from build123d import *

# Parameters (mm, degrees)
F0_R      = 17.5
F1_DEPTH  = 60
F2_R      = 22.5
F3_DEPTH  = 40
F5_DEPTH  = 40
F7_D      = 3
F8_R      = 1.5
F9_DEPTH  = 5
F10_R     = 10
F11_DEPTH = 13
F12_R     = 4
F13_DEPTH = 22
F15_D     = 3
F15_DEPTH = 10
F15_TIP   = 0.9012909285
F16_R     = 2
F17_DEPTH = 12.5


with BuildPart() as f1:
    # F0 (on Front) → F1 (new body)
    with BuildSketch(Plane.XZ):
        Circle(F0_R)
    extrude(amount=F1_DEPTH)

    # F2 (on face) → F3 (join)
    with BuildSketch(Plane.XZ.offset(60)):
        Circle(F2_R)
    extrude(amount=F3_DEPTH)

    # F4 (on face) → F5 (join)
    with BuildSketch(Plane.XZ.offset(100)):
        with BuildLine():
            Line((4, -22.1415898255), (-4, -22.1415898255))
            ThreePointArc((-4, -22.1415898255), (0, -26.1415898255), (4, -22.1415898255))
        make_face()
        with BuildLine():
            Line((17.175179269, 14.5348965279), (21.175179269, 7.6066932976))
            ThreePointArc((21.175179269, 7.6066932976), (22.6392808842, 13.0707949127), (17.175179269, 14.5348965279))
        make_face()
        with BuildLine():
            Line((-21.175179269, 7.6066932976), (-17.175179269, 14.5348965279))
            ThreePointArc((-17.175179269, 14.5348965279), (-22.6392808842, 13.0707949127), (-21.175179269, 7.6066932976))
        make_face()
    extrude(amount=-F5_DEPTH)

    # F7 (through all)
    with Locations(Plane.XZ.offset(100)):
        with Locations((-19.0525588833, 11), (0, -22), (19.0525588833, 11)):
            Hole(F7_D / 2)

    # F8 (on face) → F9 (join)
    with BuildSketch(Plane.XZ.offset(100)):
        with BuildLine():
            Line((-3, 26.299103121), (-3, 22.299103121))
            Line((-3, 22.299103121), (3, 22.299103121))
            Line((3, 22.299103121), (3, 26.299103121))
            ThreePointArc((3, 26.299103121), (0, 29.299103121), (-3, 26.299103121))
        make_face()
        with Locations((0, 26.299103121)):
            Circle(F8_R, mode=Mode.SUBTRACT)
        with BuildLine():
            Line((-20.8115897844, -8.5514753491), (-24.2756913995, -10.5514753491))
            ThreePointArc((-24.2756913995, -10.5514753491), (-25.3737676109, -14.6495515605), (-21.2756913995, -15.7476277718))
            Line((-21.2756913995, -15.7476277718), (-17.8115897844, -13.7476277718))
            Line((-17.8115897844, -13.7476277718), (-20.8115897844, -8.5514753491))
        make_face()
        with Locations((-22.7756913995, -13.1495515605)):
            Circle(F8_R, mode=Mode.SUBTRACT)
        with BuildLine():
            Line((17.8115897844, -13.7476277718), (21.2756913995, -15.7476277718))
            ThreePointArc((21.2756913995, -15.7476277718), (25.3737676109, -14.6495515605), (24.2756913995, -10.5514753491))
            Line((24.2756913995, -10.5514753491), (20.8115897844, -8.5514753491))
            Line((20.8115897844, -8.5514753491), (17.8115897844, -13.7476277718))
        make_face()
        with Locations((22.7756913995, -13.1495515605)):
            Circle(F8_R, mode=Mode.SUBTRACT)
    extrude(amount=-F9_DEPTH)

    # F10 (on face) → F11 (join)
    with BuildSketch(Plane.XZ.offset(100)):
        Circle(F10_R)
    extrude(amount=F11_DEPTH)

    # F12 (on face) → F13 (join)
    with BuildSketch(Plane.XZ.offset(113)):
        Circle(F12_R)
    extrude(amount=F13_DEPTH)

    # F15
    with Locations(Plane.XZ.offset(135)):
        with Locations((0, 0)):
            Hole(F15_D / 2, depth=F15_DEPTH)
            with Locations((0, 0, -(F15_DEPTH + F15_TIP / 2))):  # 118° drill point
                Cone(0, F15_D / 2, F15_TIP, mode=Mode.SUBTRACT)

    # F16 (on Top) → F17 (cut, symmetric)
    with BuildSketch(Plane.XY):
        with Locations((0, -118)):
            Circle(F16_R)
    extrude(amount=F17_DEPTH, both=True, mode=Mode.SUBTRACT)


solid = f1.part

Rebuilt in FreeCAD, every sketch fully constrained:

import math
import FreeCAD as App
import Part
import Sketcher

V = App.Vector
Q = App.Units.Quantity

doc = App.newDocument("Part")
body = doc.addObject("PartDesign::Body", "Body")

sketch1 = body.newObject("Sketcher::SketchObject", "Sketch")
sketch1.AttachmentSupport = (doc.getObject("XZ_Plane"), [""])
sketch1.MapMode = "FlatFace"
sketch1.addGeometry(Part.Circle(V(0, 0, 0), V(0, 0, 1), 18), False)
sketch1.addConstraint(Sketcher.Constraint("Coincident", 0, 3, -1, 1))
sketch1.addConstraint(Sketcher.Constraint("Diameter", 0, Q("35 mm")))
pad1 = body.newObject("PartDesign::Pad", "Pad")
pad1.Profile = sketch1
pad1.Length = 60

sketch2 = body.newObject("Sketcher::SketchObject", "Sketch001")
sketch2.AttachmentSupport = (doc.getObject("XZ_Plane"), [""])
sketch2.MapMode = "FlatFace"
sketch2.AttachmentOffset = App.Placement(V(0, 0, 60), App.Rotation())
sketch2.addGeometry(Part.Circle(V(0, 0, 0), V(0, 0, 1), 22), False)
sketch2.addConstraint(Sketcher.Constraint("Coincident", 0, 3, -1, 1))
sketch2.addConstraint(Sketcher.Constraint("Diameter", 0, Q("45 mm")))
pad2 = body.newObject("PartDesign::Pad", "Pad001")
pad2.Profile = sketch2
pad2.Length = 40

sketch3 = body.newObject("Sketcher::SketchObject", "Sketch002")
sketch3.AttachmentSupport = (doc.getObject("XZ_Plane"), [""])
sketch3.MapMode = "FlatFace"
sketch3.AttachmentOffset = App.Placement(V(0, 0, 100), App.Rotation())
sketch3.addGeometry(Part.LineSegment(V(4, -22.1, 0), V(-4, -22.1, 0)), False)
sketch3.addGeometry(Part.ArcOfCircle(Part.Circle(V(0, -22.1, 0), V(0, 0, 1), 4), math.radians(180), math.radians(360)), False)
sketch3.addGeometry(Part.LineSegment(V(17.2, 14.5, 0), V(21.2, 7.6, 0)), False)
sketch3.addGeometry(Part.ArcOfCircle(Part.Circle(V(19.2, 11.1, 0), V(0, 0, 1), 4), math.radians(-60), math.radians(120)), False)
sketch3.addGeometry(Part.LineSegment(V(-21.2, 7.6, 0), V(-17.2, 14.5, 0)), False)
sketch3.addGeometry(Part.ArcOfCircle(Part.Circle(V(-19.2, 11.1, 0), V(0, 0, 1), 4), math.radians(60), math.radians(240)), False)
sketch3.addConstraint(Sketcher.Constraint("Coincident", 0, 1, 1, 2))
sketch3.addConstraint(Sketcher.Constraint("Coincident", 1, 1, 0, 2))
sketch3.addConstraint(Sketcher.Constraint("Coincident", 2, 1, 3, 2))
sketch3.addConstraint(Sketcher.Constraint("Coincident", 3, 1, 2, 2))
sketch3.addConstraint(Sketcher.Constraint("Coincident", 4, 1, 5, 2))
sketch3.addConstraint(Sketcher.Constraint("Coincident", 5, 1, 4, 2))
sketch3.addConstraint(Sketcher.Constraint("Horizontal", 0))
sketch3.addConstraint(Sketcher.Constraint("Equal", 1, 3))
sketch3.addConstraint(Sketcher.Constraint("Equal", 3, 5))
sketch3.addConstraint(Sketcher.Constraint("Symmetric", 3, 3, 5, 3, -2))
sketch3.addConstraint(Sketcher.Constraint("PointOnObject", 1, 3, -2))
sketch3.addConstraint(Sketcher.Constraint("Horizontal", 1, 3, 0, 1))
sketch3.addConstraint(Sketcher.Constraint("Horizontal", 3, 1, 4, 1))
sketch3.addConstraint(Sketcher.Constraint("Horizontal", 2, 1, 5, 1))
sketch3.addConstraint(Sketcher.Constraint("Radius", 1, Q("4 mm")))
sketch3.addConstraint(Sketcher.Constraint("Angle", 2, Q("-60 deg")))
sketch3.addConstraint(Sketcher.Constraint("DistanceX", 2, 1, 3, 3, Q("2 mm")))
sketch3.addConstraint(Sketcher.Constraint("DistanceY", 1, 3, -1, 1, Q("22.14159 mm")))
sketch3.addConstraint(Sketcher.Constraint("DistanceX", -1, 1, 3, 3, Q("19.175179 mm")))
sketch3.addConstraint(Sketcher.Constraint("DistanceY", -1, 1, 3, 3, Q("11.070795 mm")))
pad3 = body.newObject("PartDesign::Pad", "Pad002")
pad3.Profile = sketch3
pad3.Length = 40
pad3.Reversed = True

sketch4 = body.newObject("Sketcher::SketchObject", "Sketch003")
sketch4.AttachmentSupport = (doc.getObject("XZ_Plane"), [""])
sketch4.MapMode = "FlatFace"
sketch4.AttachmentOffset = App.Placement(V(0, 0, 100), App.Rotation())
sketch4.addGeometry(Part.Circle(V(-19.1, 11, 0), V(0, 0, 1), 1.5), False)
sketch4.addGeometry(Part.Circle(V(0, -22, 0), V(0, 0, 1), 1.5), False)
sketch4.addGeometry(Part.Circle(V(19.1, 11, 0), V(0, 0, 1), 1.5), False)
sketch4.addConstraint(Sketcher.Constraint("Equal", 0, 1))
sketch4.addConstraint(Sketcher.Constraint("Equal", 1, 2))
sketch4.addConstraint(Sketcher.Constraint("Symmetric", 0, 3, 2, 3, -2))
sketch4.addConstraint(Sketcher.Constraint("PointOnObject", 1, 3, -2))
sketch4.addConstraint(Sketcher.Constraint("Diameter", 0, Q("3 mm")))
sketch4.addConstraint(Sketcher.Constraint("DistanceY", -1, 1, 0, 3, Q("11 mm")))
sketch4.addConstraint(Sketcher.Constraint("DistanceY", 1, 3, -1, 1, Q("22 mm")))
sketch4.addConstraint(Sketcher.Constraint("DistanceX", 0, 3, -1, 1, Q("19.052559 mm")))
doc.recompute()
hole = body.newObject("PartDesign::Hole", "Hole")
hole.Profile = sketch4
hole.ThreadType = "None"
hole.Diameter = 3
hole.DepthType = "ThroughAll"

sketch5 = body.newObject("Sketcher::SketchObject", "Sketch004")
sketch5.AttachmentSupport = (doc.getObject("XZ_Plane"), [""])
sketch5.MapMode = "FlatFace"
sketch5.AttachmentOffset = App.Placement(V(0, 0, 100), App.Rotation())
sketch5.addGeometry(Part.LineSegment(V(-3, 26.3, 0), V(-3, 22.3, 0)), False)
sketch5.addGeometry(Part.LineSegment(V(-3, 22.3, 0), V(3, 22.3, 0)), False)
sketch5.addGeometry(Part.LineSegment(V(3, 22.3, 0), V(3, 26.3, 0)), False)
sketch5.addGeometry(Part.ArcOfCircle(Part.Circle(V(0, 26.3, 0), V(0, 0, 1), 3), math.radians(0), math.radians(180)), False)
sketch5.addGeometry(Part.Circle(V(0, 26.3, 0), V(0, 0, 1), 1.5), False)
sketch5.addGeometry(Part.LineSegment(V(-20.8, -8.6, 0), V(-24.3, -10.6, 0)), False)
sketch5.addGeometry(Part.ArcOfCircle(Part.Circle(V(-22.8, -13.1, 0), V(0, 0, 1), 3), math.radians(120), math.radians(300)), False)
sketch5.addGeometry(Part.LineSegment(V(-21.3, -15.7, 0), V(-17.8, -13.7, 0)), False)
sketch5.addGeometry(Part.LineSegment(V(-17.8, -13.7, 0), V(-20.8, -8.6, 0)), False)
sketch5.addGeometry(Part.Circle(V(-22.8, -13.1, 0), V(0, 0, 1), 1.5), False)
sketch5.addGeometry(Part.LineSegment(V(17.8, -13.7, 0), V(21.3, -15.7, 0)), False)
sketch5.addGeometry(Part.ArcOfCircle(Part.Circle(V(22.8, -13.1, 0), V(0, 0, 1), 3), math.radians(-120), math.radians(60)), False)
sketch5.addGeometry(Part.LineSegment(V(24.3, -10.6, 0), V(20.8, -8.6, 0)), False)
sketch5.addGeometry(Part.LineSegment(V(20.8, -8.6, 0), V(17.8, -13.7, 0)), False)
sketch5.addGeometry(Part.Circle(V(22.8, -13.1, 0), V(0, 0, 1), 1.5), False)
sketch5.addConstraint(Sketcher.Constraint("Coincident", 0, 2, 1, 1))
sketch5.addConstraint(Sketcher.Constraint("Coincident", 1, 2, 2, 1))
sketch5.addConstraint(Sketcher.Constraint("Tangent", 2, 2, 3, 1))
sketch5.addConstraint(Sketcher.Constraint("Tangent", 3, 2, 0, 1))
sketch5.addConstraint(Sketcher.Constraint("Tangent", 5, 2, 6, 1))
sketch5.addConstraint(Sketcher.Constraint("Tangent", 6, 2, 7, 1))
sketch5.addConstraint(Sketcher.Constraint("Coincident", 7, 2, 8, 1))
sketch5.addConstraint(Sketcher.Constraint("Coincident", 8, 2, 5, 1))
sketch5.addConstraint(Sketcher.Constraint("Tangent", 10, 2, 11, 1))
sketch5.addConstraint(Sketcher.Constraint("Tangent", 11, 2, 12, 1))
sketch5.addConstraint(Sketcher.Constraint("Coincident", 12, 2, 13, 1))
sketch5.addConstraint(Sketcher.Constraint("Coincident", 13, 2, 10, 1))
sketch5.addConstraint(Sketcher.Constraint("Vertical", 0))
sketch5.addConstraint(Sketcher.Constraint("Horizontal", 1))
sketch5.addConstraint(Sketcher.Constraint("Vertical", 2))
sketch5.addConstraint(Sketcher.Constraint("Coincident", 4, 3, 3, 3))
sketch5.addConstraint(Sketcher.Constraint("Coincident", 9, 3, 6, 3))
sketch5.addConstraint(Sketcher.Constraint("Coincident", 14, 3, 11, 3))
sketch5.addConstraint(Sketcher.Constraint("Equal", 3, 6))
sketch5.addConstraint(Sketcher.Constraint("Equal", 4, 9))
sketch5.addConstraint(Sketcher.Constraint("Equal", 6, 11))
sketch5.addConstraint(Sketcher.Constraint("Equal", 9, 14))
sketch5.addConstraint(Sketcher.Constraint("Symmetric", 6, 3, 11, 3, -2))
sketch5.addConstraint(Sketcher.Constraint("Symmetric", 8, 2, 12, 2, -2))
sketch5.addConstraint(Sketcher.Constraint("Symmetric", 7, 2, 13, 2, -2))
sketch5.addConstraint(Sketcher.Constraint("PointOnObject", 3, 3, -2))
sketch5.addConstraint(Sketcher.Constraint("Parallel", 5, 7))
sketch5.addConstraint(Sketcher.Constraint("Perpendicular", 7, 8))
sketch5.addConstraint(Sketcher.Constraint("Diameter", 4, Q("3 mm")))
sketch5.addConstraint(Sketcher.Constraint("Radius", 3, Q("3 mm")))
sketch5.addConstraint(Sketcher.Constraint("DistanceY", 0, 2, 0, 1, Q("4 mm")))
sketch5.addConstraint(Sketcher.Constraint("Angle", 5, Q("-150 deg")))
sketch5.addConstraint(Sketcher.Constraint("Distance", 5, Q("4 mm")))
sketch5.addConstraint(Sketcher.Constraint("DistanceX", 6, 3, -1, 1, Q("22.775691 mm")))
sketch5.addConstraint(Sketcher.Constraint("DistanceY", 6, 3, -1, 1, Q("13.149552 mm")))
sketch5.addConstraint(Sketcher.Constraint("DistanceY", 5, 2, 0, 2, Q("32.850578 mm")))
pad4 = body.newObject("PartDesign::Pad", "Pad003")
pad4.Profile = sketch5
pad4.Length = 5
pad4.Reversed = True

sketch6 = body.newObject("Sketcher::SketchObject", "Sketch005")
sketch6.AttachmentSupport = (doc.getObject("XZ_Plane"), [""])
sketch6.MapMode = "FlatFace"
sketch6.AttachmentOffset = App.Placement(V(0, 0, 100), App.Rotation())
sketch6.addGeometry(Part.Circle(V(0, 0, 0), V(0, 0, 1), 10), False)
sketch6.addConstraint(Sketcher.Constraint("Coincident", 0, 3, -1, 1))
sketch6.addConstraint(Sketcher.Constraint("Diameter", 0, Q("20 mm")))
pad5 = body.newObject("PartDesign::Pad", "Pad004")
pad5.Profile = sketch6
pad5.Length = 13

sketch7 = body.newObject("Sketcher::SketchObject", "Sketch006")
sketch7.AttachmentSupport = (doc.getObject("XZ_Plane"), [""])
sketch7.MapMode = "FlatFace"
sketch7.AttachmentOffset = App.Placement(V(0, 0, 113), App.Rotation())
sketch7.addGeometry(Part.Circle(V(0, 0, 0), V(0, 0, 1), 4), False)
sketch7.addConstraint(Sketcher.Constraint("Coincident", 0, 3, -1, 1))
sketch7.addConstraint(Sketcher.Constraint("Diameter", 0, Q("8 mm")))
pad6 = body.newObject("PartDesign::Pad", "Pad005")
pad6.Profile = sketch7
pad6.Length = 22

sketch8 = body.newObject("Sketcher::SketchObject", "Sketch007")
sketch8.AttachmentSupport = (doc.getObject("XZ_Plane"), [""])
sketch8.MapMode = "FlatFace"
sketch8.AttachmentOffset = App.Placement(V(0, 0, 135), App.Rotation())
sketch8.addGeometry(Part.Circle(V(0, 0, 0), V(0, 0, 1), 1.5), False)
sketch8.addConstraint(Sketcher.Constraint("Coincident", 0, 3, -1, 1))
sketch8.addConstraint(Sketcher.Constraint("Diameter", 0, Q("3 mm")))
doc.recompute()
hole2 = body.newObject("PartDesign::Hole", "Hole001")
hole2.Profile = sketch8
hole2.ThreadType = "None"
hole2.Diameter = 3
hole2.DepthType = "Dimension"
hole2.Depth = 10
hole2.DrillPoint = "Angled"
hole2.DrillPointAngle = 118

sketch9 = body.newObject("Sketcher::SketchObject", "Sketch008")
sketch9.AttachmentSupport = (doc.getObject("XY_Plane"), [""])
sketch9.MapMode = "FlatFace"
sketch9.addGeometry(Part.Circle(V(0, -118, 0), V(0, 0, 1), 2), False)
sketch9.addConstraint(Sketcher.Constraint("PointOnObject", 0, 3, -2))
sketch9.addConstraint(Sketcher.Constraint("Diameter", 0, Q("4 mm")))
sketch9.addConstraint(Sketcher.Constraint("DistanceY", 0, 3, -1, 1, Q("118 mm")))
pocket1 = body.newObject("PartDesign::Pocket", "Pocket")
pocket1.Profile = sketch9
pocket1.Length = 25
pocket1.Midplane = True

doc.recompute()
